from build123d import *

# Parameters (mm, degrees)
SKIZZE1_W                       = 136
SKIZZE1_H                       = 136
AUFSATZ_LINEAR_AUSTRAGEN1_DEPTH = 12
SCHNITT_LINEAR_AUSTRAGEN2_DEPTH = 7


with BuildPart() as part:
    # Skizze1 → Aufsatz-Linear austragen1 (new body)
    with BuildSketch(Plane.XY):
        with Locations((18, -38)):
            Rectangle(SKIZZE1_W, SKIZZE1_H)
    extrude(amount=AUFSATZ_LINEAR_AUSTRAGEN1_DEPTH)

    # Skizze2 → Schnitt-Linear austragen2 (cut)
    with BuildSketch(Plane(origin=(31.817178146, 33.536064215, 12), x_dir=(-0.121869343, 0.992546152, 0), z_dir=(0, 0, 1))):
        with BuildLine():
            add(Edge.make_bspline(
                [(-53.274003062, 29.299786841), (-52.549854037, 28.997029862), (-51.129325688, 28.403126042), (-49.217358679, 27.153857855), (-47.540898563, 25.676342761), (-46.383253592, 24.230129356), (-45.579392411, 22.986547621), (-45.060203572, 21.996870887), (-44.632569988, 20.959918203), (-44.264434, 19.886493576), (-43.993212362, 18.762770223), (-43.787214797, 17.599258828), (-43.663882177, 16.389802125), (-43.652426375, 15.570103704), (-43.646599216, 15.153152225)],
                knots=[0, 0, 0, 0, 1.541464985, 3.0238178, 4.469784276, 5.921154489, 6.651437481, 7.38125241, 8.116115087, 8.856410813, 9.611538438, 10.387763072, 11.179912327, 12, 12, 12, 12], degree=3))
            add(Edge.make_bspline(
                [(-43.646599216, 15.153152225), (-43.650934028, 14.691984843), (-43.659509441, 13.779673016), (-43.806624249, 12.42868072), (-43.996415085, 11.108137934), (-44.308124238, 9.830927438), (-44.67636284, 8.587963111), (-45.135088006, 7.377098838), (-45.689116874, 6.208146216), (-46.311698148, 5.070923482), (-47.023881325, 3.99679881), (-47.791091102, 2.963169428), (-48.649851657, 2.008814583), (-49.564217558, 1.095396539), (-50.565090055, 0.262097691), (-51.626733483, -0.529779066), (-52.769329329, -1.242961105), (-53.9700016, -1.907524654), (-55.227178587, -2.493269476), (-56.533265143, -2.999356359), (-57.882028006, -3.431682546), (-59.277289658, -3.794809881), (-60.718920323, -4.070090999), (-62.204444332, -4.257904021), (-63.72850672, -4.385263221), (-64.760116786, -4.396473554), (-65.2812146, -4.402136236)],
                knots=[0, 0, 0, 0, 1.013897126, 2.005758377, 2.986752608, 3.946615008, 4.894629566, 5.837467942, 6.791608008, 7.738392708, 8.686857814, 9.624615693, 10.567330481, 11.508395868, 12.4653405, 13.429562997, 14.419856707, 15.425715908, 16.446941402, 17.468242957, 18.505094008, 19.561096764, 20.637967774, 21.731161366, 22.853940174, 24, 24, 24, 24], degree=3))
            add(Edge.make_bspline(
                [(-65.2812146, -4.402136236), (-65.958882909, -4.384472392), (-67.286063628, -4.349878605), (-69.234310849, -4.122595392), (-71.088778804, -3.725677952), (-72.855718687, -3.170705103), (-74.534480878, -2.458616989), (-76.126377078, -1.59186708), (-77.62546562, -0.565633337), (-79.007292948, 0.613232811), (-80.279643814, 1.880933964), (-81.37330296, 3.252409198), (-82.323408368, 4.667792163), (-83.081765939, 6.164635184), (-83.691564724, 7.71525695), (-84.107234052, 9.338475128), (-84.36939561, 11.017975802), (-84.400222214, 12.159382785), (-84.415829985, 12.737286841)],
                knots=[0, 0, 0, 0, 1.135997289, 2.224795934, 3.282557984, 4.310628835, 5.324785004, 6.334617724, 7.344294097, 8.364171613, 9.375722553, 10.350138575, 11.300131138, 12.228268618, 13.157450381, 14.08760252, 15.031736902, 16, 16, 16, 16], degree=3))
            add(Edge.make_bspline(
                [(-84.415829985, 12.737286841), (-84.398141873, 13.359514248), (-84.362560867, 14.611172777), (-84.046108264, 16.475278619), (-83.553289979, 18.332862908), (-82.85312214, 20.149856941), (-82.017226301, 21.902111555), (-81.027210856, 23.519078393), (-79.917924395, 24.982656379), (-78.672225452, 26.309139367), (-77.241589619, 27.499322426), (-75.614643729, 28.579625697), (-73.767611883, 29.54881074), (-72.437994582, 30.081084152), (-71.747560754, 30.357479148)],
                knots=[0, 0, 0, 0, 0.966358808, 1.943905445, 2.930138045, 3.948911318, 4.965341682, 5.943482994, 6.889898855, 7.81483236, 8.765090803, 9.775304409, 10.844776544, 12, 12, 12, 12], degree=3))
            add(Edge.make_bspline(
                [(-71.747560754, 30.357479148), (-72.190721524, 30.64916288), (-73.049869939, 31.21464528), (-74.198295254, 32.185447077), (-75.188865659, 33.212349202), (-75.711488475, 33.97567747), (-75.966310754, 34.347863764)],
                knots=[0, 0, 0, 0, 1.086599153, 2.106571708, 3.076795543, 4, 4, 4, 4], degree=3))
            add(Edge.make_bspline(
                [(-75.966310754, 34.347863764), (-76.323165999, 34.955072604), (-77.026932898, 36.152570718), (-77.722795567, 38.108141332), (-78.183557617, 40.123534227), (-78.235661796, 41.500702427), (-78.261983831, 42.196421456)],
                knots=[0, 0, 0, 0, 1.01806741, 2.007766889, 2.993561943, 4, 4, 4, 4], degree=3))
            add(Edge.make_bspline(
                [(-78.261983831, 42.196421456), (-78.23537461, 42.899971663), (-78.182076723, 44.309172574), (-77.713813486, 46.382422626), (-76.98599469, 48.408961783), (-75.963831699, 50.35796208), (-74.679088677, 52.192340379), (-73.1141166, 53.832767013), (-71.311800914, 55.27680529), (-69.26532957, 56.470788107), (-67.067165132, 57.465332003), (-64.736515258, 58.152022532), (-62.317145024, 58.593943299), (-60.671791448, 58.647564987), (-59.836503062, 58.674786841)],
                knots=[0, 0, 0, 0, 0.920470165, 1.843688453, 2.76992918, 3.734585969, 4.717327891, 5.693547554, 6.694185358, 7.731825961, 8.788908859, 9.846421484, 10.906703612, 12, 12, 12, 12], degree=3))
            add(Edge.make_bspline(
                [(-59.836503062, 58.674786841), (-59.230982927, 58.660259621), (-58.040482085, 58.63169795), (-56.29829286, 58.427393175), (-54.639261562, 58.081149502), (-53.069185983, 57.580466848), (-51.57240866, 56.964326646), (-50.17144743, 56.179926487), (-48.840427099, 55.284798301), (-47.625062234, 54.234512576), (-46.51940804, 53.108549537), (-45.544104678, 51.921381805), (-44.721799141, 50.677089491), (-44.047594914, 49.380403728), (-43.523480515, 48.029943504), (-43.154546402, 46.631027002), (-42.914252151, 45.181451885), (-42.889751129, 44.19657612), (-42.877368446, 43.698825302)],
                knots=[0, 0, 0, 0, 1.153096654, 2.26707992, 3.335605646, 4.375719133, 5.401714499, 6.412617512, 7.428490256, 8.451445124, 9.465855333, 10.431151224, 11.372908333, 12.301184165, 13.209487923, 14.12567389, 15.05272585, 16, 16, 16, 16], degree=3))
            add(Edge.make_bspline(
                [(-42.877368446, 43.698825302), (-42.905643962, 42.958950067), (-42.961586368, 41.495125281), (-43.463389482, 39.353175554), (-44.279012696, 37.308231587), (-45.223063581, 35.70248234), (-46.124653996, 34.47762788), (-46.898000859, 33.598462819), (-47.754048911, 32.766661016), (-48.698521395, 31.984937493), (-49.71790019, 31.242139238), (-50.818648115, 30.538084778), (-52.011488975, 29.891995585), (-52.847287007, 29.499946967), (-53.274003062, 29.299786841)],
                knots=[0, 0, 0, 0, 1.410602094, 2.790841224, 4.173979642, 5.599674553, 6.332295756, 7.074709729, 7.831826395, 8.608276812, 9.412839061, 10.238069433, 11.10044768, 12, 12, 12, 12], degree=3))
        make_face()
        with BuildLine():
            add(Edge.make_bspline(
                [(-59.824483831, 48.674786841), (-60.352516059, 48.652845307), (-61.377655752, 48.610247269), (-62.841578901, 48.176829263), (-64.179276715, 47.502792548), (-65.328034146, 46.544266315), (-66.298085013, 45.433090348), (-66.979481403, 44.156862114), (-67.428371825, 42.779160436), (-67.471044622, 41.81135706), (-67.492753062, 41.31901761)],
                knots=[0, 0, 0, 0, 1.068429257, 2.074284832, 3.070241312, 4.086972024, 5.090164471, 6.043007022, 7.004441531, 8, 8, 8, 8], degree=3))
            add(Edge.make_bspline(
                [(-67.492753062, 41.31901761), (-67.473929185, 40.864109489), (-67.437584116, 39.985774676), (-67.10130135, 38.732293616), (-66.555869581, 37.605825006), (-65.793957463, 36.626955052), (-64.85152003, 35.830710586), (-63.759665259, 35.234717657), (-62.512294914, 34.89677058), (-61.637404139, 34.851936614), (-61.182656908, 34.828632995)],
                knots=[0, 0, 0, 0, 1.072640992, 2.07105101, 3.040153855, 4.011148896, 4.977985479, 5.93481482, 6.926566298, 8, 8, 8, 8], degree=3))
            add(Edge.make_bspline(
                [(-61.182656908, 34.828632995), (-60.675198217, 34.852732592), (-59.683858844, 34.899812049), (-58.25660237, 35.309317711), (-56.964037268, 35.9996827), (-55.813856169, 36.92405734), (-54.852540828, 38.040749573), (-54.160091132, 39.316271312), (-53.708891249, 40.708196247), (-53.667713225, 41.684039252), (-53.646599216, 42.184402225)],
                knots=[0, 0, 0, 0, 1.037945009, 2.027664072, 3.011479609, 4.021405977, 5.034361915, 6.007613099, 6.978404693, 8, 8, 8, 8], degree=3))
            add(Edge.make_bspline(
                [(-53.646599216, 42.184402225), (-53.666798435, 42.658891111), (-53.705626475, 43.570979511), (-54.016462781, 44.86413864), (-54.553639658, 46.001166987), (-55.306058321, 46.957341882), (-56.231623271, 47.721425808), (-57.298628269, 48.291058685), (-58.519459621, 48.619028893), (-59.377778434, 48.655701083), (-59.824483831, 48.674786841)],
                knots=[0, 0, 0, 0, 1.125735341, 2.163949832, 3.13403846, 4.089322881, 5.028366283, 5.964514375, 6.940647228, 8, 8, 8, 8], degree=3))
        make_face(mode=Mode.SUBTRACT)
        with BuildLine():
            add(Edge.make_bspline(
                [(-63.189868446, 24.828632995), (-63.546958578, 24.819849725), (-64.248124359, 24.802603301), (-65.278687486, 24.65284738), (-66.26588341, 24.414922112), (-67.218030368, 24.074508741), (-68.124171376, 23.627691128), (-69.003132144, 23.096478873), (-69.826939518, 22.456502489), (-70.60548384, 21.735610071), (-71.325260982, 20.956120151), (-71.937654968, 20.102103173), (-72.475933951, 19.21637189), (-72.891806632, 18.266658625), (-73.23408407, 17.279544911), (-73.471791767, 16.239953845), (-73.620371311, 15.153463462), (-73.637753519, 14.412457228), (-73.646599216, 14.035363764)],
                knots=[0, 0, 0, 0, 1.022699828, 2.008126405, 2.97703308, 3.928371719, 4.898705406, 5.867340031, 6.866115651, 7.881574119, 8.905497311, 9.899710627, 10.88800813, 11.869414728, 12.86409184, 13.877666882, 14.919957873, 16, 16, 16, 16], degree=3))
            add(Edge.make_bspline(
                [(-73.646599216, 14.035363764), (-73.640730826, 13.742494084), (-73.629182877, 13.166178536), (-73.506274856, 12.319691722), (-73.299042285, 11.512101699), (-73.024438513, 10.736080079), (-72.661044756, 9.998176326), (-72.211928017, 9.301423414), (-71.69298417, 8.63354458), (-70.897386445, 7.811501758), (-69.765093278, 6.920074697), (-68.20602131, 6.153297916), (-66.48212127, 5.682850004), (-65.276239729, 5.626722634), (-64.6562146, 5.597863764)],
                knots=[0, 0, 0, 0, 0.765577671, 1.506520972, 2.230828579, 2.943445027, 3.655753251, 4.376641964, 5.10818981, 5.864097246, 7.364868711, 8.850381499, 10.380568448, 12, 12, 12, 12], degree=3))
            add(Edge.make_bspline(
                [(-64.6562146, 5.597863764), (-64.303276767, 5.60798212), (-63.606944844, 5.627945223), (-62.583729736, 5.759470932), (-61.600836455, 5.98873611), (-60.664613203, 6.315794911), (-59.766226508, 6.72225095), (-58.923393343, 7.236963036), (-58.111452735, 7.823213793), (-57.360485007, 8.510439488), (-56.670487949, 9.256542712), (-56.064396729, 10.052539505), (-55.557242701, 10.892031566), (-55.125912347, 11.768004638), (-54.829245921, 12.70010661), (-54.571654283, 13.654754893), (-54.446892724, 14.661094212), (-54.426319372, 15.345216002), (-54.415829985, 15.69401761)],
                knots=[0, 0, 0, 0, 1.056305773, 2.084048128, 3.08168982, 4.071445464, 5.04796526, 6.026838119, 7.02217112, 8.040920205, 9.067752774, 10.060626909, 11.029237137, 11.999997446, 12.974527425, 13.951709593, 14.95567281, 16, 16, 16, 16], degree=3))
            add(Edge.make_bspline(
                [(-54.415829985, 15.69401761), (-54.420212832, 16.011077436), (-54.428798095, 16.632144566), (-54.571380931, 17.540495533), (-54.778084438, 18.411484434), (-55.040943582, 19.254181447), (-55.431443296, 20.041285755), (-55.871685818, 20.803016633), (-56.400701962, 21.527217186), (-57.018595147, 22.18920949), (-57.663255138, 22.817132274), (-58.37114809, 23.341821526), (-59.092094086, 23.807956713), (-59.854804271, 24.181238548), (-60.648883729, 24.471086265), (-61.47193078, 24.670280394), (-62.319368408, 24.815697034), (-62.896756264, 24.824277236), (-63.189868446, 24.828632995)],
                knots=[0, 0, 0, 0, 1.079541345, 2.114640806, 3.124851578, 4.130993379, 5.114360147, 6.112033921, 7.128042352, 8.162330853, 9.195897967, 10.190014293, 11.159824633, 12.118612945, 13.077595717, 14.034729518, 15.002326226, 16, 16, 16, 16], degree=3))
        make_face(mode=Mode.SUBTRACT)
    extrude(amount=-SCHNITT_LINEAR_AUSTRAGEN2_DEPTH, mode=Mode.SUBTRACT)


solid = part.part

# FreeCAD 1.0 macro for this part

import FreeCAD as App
import Part
import Sketcher
from FreeCAD import Vector

doc = App.newDocument("Part")
body = doc.addObject("PartDesign::Body", "Body")

# Sketch on XY plane
sketch1 = body.newObject("Sketcher::SketchObject", "Sketch")
sketch1.AttachmentSupport = (doc.getObject("XY_Plane"), [""])
sketch1.MapMode = "FlatFace"
sketch1.addGeometry(Part.LineSegment(Vector(-50, 30, 0), Vector(-50, -106, 0)), False)
sketch1.addGeometry(Part.LineSegment(Vector(-50, -106, 0), Vector(86, -106, 0)), False)
sketch1.addGeometry(Part.LineSegment(Vector(86, -106, 0), Vector(86, 30, 0)), False)
sketch1.addGeometry(Part.LineSegment(Vector(86, 30, 0), Vector(-50, 30, 0)), False)
sketch1.addConstraint(Sketcher.Constraint("Coincident", 0, 2, 1, 1))
sketch1.addConstraint(Sketcher.Constraint("Coincident", 1, 2, 2, 1))
sketch1.addConstraint(Sketcher.Constraint("Coincident", 2, 2, 3, 1))
sketch1.addConstraint(Sketcher.Constraint("Coincident", 3, 2, 0, 1))
sketch1.addConstraint(Sketcher.Constraint("Vertical", 0))
sketch1.addConstraint(Sketcher.Constraint("Horizontal", 1))
sketch1.addConstraint(Sketcher.Constraint("Vertical", 2))
sketch1.addConstraint(Sketcher.Constraint("Horizontal", 3))
sketch1.addConstraint(Sketcher.Constraint("Equal", 3, 0))
sketch1.addConstraint(Sketcher.Constraint("DistanceX", 1, 1, 1, 2, 136.0))
sketch1.addConstraint(Sketcher.Constraint("DistanceX", 0, 2, -1, 1, 50.0))
sketch1.addConstraint(Sketcher.Constraint("DistanceY", 0, 2, -1, 1, 106.0))
pad1 = body.newObject("PartDesign::Pad", "Pad")
pad1.Profile = sketch1
pad1.Length = 12

# Sketch on XY plane
sketch2 = body.newObject("Sketcher::SketchObject", "Sketch001")
sketch2.AttachmentSupport = (doc.getObject("XY_Plane"), [""])
sketch2.MapMode = "FlatFace"
sketch2.AttachmentOffset = App.Placement(Vector(0, 0, 12), App.Rotation())
sketch2.addGeometry(Part.BSplineCurve([Vector(9.228255, -22.911588, 0), Vector(9.440504, -22.15594, 0), Vector(9.856862, -20.673622, 0), Vector(10.863808, -18.623659, 0), Vector(12.126001, -16.779631, 0), Vector(13.420353, -15.454366, 0), Vector(14.556699, -14.504942, 0), Vector(15.475726, -13.869012, 0), Vector(16.452834, -13.318193, 0), Vector(17.473393, -12.821983, 0), Vector(18.555687, -12.415836, 0), Vector(19.685421, -12.069577, 0), Vector(20.870832, -11.799768, 0), Vector(21.683024, -11.688502, 0), Vector(22.096158, -11.631905, 0)], [4, 1, 1, 1, 1, 1, 1, 1, 1, 1, 1, 1, 4], [0, 1.541464985, 3.0238178, 4.469784276, 5.921154489, 6.651437481, 7.38125241, 8.116115087, 8.856410813, 9.611538438, 10.387763072, 11.179912327, 12], False, 3, [1, 1, 1, 1, 1, 1, 1, 1, 1, 1, 1, 1, 1, 1, 1], False), False)
sketch2.addGeometry(Part.BSplineCurve([Vector(-6.330486, -14.34725, 0), Vector(-5.59268, -14.285147, 0), Vector(-4.132948, -14.162277, 0), Vector(-1.94581, -14.399301, 0), Vector(0.183291, -14.959629, 0), Vector(1.892122, -15.700952, 0), Vector(3.217723, -16.446549, 0), Vector(4.184582, -17.106989, 0), Vector(5.114509, -17.855285, 0), Vector(6.005508, -18.697449, 0), Vector(6.867001, -19.618705, 0), Vector(7.699955, -20.625446, 0), Vector(8.486599, -21.730657, 0), Vector(8.977583, -22.512446, 0), Vector(9.228255, -22.911588, 0)], [4, 1, 1, 1, 1, 1, 1, 1, 1, 1, 1, 1, 4], [0, 1.410602094, 2.790841224, 4.173979642, 5.599674553, 6.332295756, 7.074709729, 7.831826395, 8.608276812, 9.412839061, 10.238069433, 11.10044768, 12], False, 3, [1, 1, 1, 1, 1, 1, 1, 1, 1, 1, 1, 1, 1, 1, 1], False), False)
sketch2.addGeometry(Part.BSplineCurve([Vector(-19.12802, -33.005084, 0), Vector(-19.187396, -32.402307, 0), Vector(-19.304133, -31.217199, 0), Vector(-19.31367, -29.463098, 0), Vector(-19.172192, -27.774236, 0), Vector(-18.866586, -26.154846, 0), Vector(-18.43745, -24.594137, 0), Vector(-17.82963, -23.108024, 0), Vector(-17.103385, -21.677836, 0), Vector(-16.209044, -20.343532, 0), Vector(-15.226219, -19.108899, 0), Vector(-14.166759, -17.996186, 0), Vector(-13.031956, -17.028369, 0), Vector(-11.8271, -16.201164, 0), Vector(-10.550579, -15.516377, 0), Vector(-9.207052, -14.979707, 0), Vector(-7.797566, -14.564545, 0), Vector(-6.823018, -14.420201, 0), Vector(-6.330486, -14.34725, 0)], [4, 1, 1, 1, 1, 1, 1, 1, 1, 1, 1, 1, 1, 1, 1, 1, 4], [0, 1.153096654, 2.26707992, 3.335605646, 4.375719133, 5.401714499, 6.412617512, 7.428490256, 8.451445124, 9.465855333, 10.431151224, 11.372908333, 12.301184165, 13.209487923, 14.12567389, 15.05272585, 16], False, 3, [1, 1, 1, 1, 1, 1, 1, 1, 1, 1, 1, 1, 1, 1, 1, 1, 1, 1, 1], False), False)
sketch2.addGeometry(Part.BSplineCurve([Vector(-0.526981, -49.285017, 0), Vector(-1.22853, -49.344347, 0), Vector(-2.633722, -49.463185, 0), Vector(-4.748586, -49.251078, 0), Vector(-6.848718, -48.775657, 0), Vector(-8.907761, -47.998636, 0), Vector(-10.885037, -46.947024, 0), Vector(-12.703958, -45.593635, 0), Vector(-14.35688, -43.980737, 0), Vector(-15.791365, -42.09503, 0), Vector(-17.046385, -40.034455, 0), Vector(-18.011991, -37.804864, 0), Vector(-18.745465, -35.457384, 0), Vector(-18.999205, -33.830829, 0), Vector(-19.12802, -33.005084, 0)], [4, 1, 1, 1, 1, 1, 1, 1, 1, 1, 1, 1, 4], [0, 0.920470165, 1.843688453, 2.76992918, 3.734585969, 4.717327891, 5.693547554, 6.694185358, 7.731825961, 8.788908859, 9.846421484, 10.906703612, 12], False, 3, [1, 1, 1, 1, 1, 1, 1, 1, 1, 1, 1, 1, 1, 1, 1], False), False)
sketch2.addGeometry(Part.BSplineCurve([Vector(6.983303, -46.049957, 0), Vector(6.424109, -46.478152, 0), Vector(5.321305, -47.322612, 0), Vector(3.465115, -48.251612, 0), Vector(1.520897, -48.954554, 0), Vector(0.160344, -49.174104, 0), Vector(-0.526981, -49.285017, 0)], [4, 1, 1, 1, 4], [0, 1.01806741, 2.007766889, 2.993561943, 4], False, 3, [1, 1, 1, 1, 1, 1, 1], False), False)
sketch2.addGeometry(Part.BSplineCurve([Vector(10.429807, -41.376347, 0), Vector(10.194305, -41.851752, 0), Vector(9.737742, -42.773411, 0), Vector(8.914134, -44.031588, 0), Vector(8.015606, -45.139922, 0), Vector(7.32166, -45.751676, 0), Vector(6.983303, -46.049957, 0)], [4, 1, 1, 1, 4], [0, 1.086599153, 2.106571708, 3.076795543, 4], False, 3, [1, 1, 1, 1, 1, 1, 1], False), False)
sketch2.addGeometry(Part.BSplineCurve([Vector(29.462535, -51.802828, 0), Vector(28.84279, -51.861102, 0), Vector(27.596125, -51.978325, 0), Vector(25.707348, -51.891409, 0), Vector(23.80355, -51.628646, 0), Vector(21.914771, -51.155133, 0), Vector(20.073707, -50.539014, 0), Vector(18.34814, -49.753437, 0), Vector(16.760284, -48.830784, 0), Vector(15.291876, -47.756028, 0), Vector(13.936213, -46.481103, 0), Vector(12.665688, -44.99794, 0), Vector(11.47863, -43.282789, 0), Vector(10.788285, -42.027951, 0), Vector(10.429807, -41.376347, 0)], [4, 1, 1, 1, 1, 1, 1, 1, 1, 1, 1, 1, 4], [0, 0.966358808, 1.943905445, 2.930138045, 3.948911318, 4.965341682, 5.943482994, 6.889898855, 7.81483236, 8.765090803, 9.775304409, 10.844776544, 12], False, 3, [1, 1, 1, 1, 1, 1, 1, 1, 1, 1, 1, 1, 1, 1, 1], False), False)
sketch2.addGeometry(Part.BSplineCurve([Vector(44.14228, -30.722069, 0), Vector(44.207335, -31.396838, 0), Vector(44.334742, -32.718342, 0), Vector(44.346584, -34.679767, 0), Vector(44.178628, -36.568784, 0), Vector(43.843128, -38.390187, 0), Vector(43.340937, -40.143218, 0), Vector(42.674651, -41.828879, 0), Vector(41.83876, -43.44186, 0), Vector(40.837083, -44.957055, 0), Vector(39.733892, -46.374416, 0), Vector(38.505923, -47.627063, 0), Vector(37.216879, -48.742579, 0), Vector(35.823613, -49.677703, 0), Vector(34.358866, -50.47193, 0), Vector(32.798404, -51.082321, 0), Vector(31.163371, -51.547208, 0), Vector(30.034229, -51.716908, 0), Vector(29.462535, -51.802828, 0)], [4, 1, 1, 1, 1, 1, 1, 1, 1, 1, 1, 1, 1, 1, 1, 1, 4], [0, 1.135997289, 2.224795934, 3.282557984, 4.310628835, 5.324785004, 6.334617724, 7.344294097, 8.364171613, 9.375722553, 10.350138575, 11.300131138, 12.228268618, 13.157450381, 14.08760252, 15.031736902, 16], False, 3, [1, 1, 1, 1, 1, 1, 1, 1, 1, 1, 1, 1, 1, 1, 1, 1, 1, 1, 1], False), False)
sketch2.addGeometry(Part.BSplineCurve([Vector(22.096158, -11.631905, 0), Vector(22.554416, -11.580005, 0), Vector(23.460972, -11.477334, 0), Vector(24.819823, -11.458707, 0), Vector(26.153653, -11.48615, 0), Vector(27.459331, -11.639883, 0), Vector(28.737907, -11.853897, 0), Vector(29.995651, -12.161636, 0), Vector(31.223409, -12.569076, 0), Vector(32.428029, -13.048424, 0), Vector(33.58094, -13.624395, 0), Vector(34.700365, -14.259919, 0), Vector(35.752262, -14.995972, 0), Vector(36.770305, -15.792204, 0), Vector(37.719368, -16.684063, 0), Vector(38.634724, -17.641288, 0), Vector(39.481838, -18.688452, 0), Vector(40.287773, -19.799184, 0), Vector(41.022363, -20.975606, 0), Vector(41.68385, -22.210281, 0), Vector(42.277326, -23.496303, 0), Vector(42.807786, -24.836911, 0), Vector(43.256706, -26.234247, 0), Vector(43.624159, -27.68581, 0), Vector(43.936306, -29.182991, 0), Vector(44.073154, -30.205545, 0), Vector(44.14228, -30.722069, 0)], [4, 1, 1, 1, 1, 1, 1, 1, 1, 1, 1, 1, 1, 1, 1, 1, 1, 1, 1, 1, 1, 1, 1, 1, 4], [0, 1.013897126, 2.005758377, 2.986752608, 3.946615008, 4.894629566, 5.837467942, 6.791608008, 7.738392708, 8.686857814, 9.624615693, 10.567330481, 11.508395868, 12.4653405, 13.429562997, 14.419856707, 15.425715908, 16.446941402, 17.468242957, 18.505094008, 19.561096764, 20.637967774, 21.731161366, 22.853940174, 24], False, 3, [1, 1, 1, 1, 1, 1, 1, 1, 1, 1, 1, 1, 1, 1, 1, 1, 1, 1, 1, 1, 1, 1, 1, 1, 1, 1, 1], False), False)
sketch2.addGeometry(Part.BSplineCurve([Vector(22.871763, -22.386778, 0), Vector(22.5576, -22.429768, 0), Vector(21.942209, -22.513978, 0), Vector(21.058005, -22.766199, 0), Vector(20.218699, -23.077508, 0), Vector(19.414318, -23.441107, 0), Vector(18.680671, -23.92462, 0), Vector(17.97827, -24.454413, 0), Vector(17.323938, -25.067743, 0), Vector(16.742182, -25.761707, 0), Vector(16.197504, -26.478087, 0), Vector(15.762996, -27.244647, 0), Vector(15.388197, -28.017026, 0), Vector(15.110649, -28.819543, 0), Vector(14.919735, -29.643027, 0), Vector(14.82233, -30.484215, 0), Vector(14.781274, -31.343058, 0), Vector(14.843124, -31.917188, 0), Vector(14.874522, -32.208646, 0)], [4, 1, 1, 1, 1, 1, 1, 1, 1, 1, 1, 1, 1, 1, 1, 1, 4], [0, 1.079541345, 2.114640806, 3.124851578, 4.130993379, 5.114360147, 6.112033921, 7.128042352, 8.162330853, 9.195897967, 10.190014293, 11.159824633, 12.118612945, 13.077595717, 14.034729518, 15.002326226, 16], False, 3, [1, 1, 1, 1, 1, 1, 1, 1, 1, 1, 1, 1, 1, 1, 1, 1, 1, 1, 1], False), False)
sketch2.addGeometry(Part.BSplineCurve([Vector(34.14065, -31.320421, 0), Vector(34.087595, -30.971347, 0), Vector(33.982919, -30.282638, 0), Vector(33.727675, -29.283079, 0), Vector(33.380335, -28.335452, 0), Vector(32.941617, -27.446066, 0), Vector(32.428705, -26.60391, 0), Vector(31.815114, -25.830087, 0), Vector(31.134282, -25.095645, 0), Vector(30.360659, -24.434026, 0), Vector(29.536027, -23.840099, 0), Vector(28.6721, -23.335533, 0), Vector(27.777059, -22.934468, 0), Vector(26.855049, -22.613107, 0), Vector(25.89374, -22.432246, 0), Vector(24.914815, -22.292917, 0), Vector(23.900773, -22.291728, 0), Vector(23.219243, -22.354681, 0), Vector(22.871763, -22.386778, 0)], [4, 1, 1, 1, 1, 1, 1, 1, 1, 1, 1, 1, 1, 1, 1, 1, 4], [0, 1.056305773, 2.084048128, 3.08168982, 4.071445464, 5.04796526, 6.026838119, 7.02217112, 8.040920205, 9.067752774, 10.060626909, 11.029237137, 11.999997446, 12.974527425, 13.951709593, 14.95567281, 16], False, 3, [1, 1, 1, 1, 1, 1, 1, 1, 1, 1, 1, 1, 1, 1, 1, 1, 1, 1, 1], False), False)
sketch2.addGeometry(Part.BSplineCurve([Vector(26.861695, -41.272065, 0), Vector(27.151666, -41.230549, 0), Vector(27.722278, -41.148851, 0), Vector(28.547477, -40.923699, 0), Vector(29.323792, -40.61959, 0), Vector(30.060564, -40.25246, 0), Vector(30.74868, -39.801847, 0), Vector(31.385506, -39.271165, 0), Vector(31.985164, -38.674696, 0), Vector(32.70412, -37.784846, 0), Vector(33.450911, -36.552356, 0), Vector(34.021969, -34.911458, 0), Vector(34.27882, -33.143075, 0), Vector(34.187569, -31.939341, 0), Vector(34.14065, -31.320421, 0)], [4, 1, 1, 1, 1, 1, 1, 1, 1, 1, 1, 1, 4], [0, 0.765577671, 1.506520972, 2.230828579, 2.943445027, 3.655753251, 4.376641964, 5.10818981, 5.864097246, 7.364868711, 8.850381499, 10.380568448, 12], False, 3, [1, 1, 1, 1, 1, 1, 1, 1, 1, 1, 1, 1, 1, 1, 1], False), False)
sketch2.addGeometry(Part.BSplineCurve([Vector(14.874522, -32.208646, 0), Vector(14.926758, -32.562004, 0), Vector(15.029326, -33.255841, 0), Vector(15.30356, -34.260472, 0), Vector(15.660021, -35.211314, 0), Vector(16.113934, -36.114878, 0), Vector(16.667852, -36.959811, 0), Vector(17.302223, -37.767482, 0), Vector(18.037826, -38.507155, 0), Vector(18.848226, -39.192042, 0), Vector(19.709624, -39.811458, 0), Vector(20.631908, -40.315209, 0), Vector(21.576637, -40.741532, 0), Vector(22.569953, -41.038564, 0), Vector(23.591422, -41.257991, 0), Vector(24.652233, -41.367232, 0), Vector(25.748733, -41.382295, 0), Vector(26.486334, -41.309241, 0), Vector(26.861695, -41.272065, 0)], [4, 1, 1, 1, 1, 1, 1, 1, 1, 1, 1, 1, 1, 1, 1, 1, 4], [0, 1.022699828, 2.008126405, 2.97703308, 3.928371719, 4.898705406, 5.867340031, 6.866115651, 7.881574119, 8.905497311, 9.899710627, 10.88800813, 11.869414728, 12.86409184, 13.877666882, 14.919957873, 16], False, 3, [1, 1, 1, 1, 1, 1, 1, 1, 1, 1, 1, 1, 1, 1, 1, 1, 1, 1, 1], False), False)
sketch2.addGeometry(Part.BSplineCurve([Vector(-3.514912, -24.851647, 0), Vector(-3.983403, -24.929521, 0), Vector(-4.88396, -25.079215, 0), Vector(-6.129599, -25.545331, 0), Vector(-7.192687, -26.217073, 0), Vector(-8.050038, -27.080412, 0), Vector(-8.695628, -28.092196, 0), Vector(-9.13098, -29.220668, 0), Vector(-9.307724, -30.472369, 0), Vector(-9.23952, -31.32876, 0), Vector(-9.204024, -31.774461, 0)], [4, 1, 1, 1, 1, 1, 1, 1, 4], [0, 1.125735341, 2.163949832, 3.13403846, 4.089322881, 5.028366283, 5.964514375, 6.940647228, 8], False, 3, [1, 1, 1, 1, 1, 1, 1, 1, 1, 1, 1], False), False)
sketch2.addGeometry(Part.BSplineCurve([Vector(4.704443, -31.435089, 0), Vector(4.618679, -30.93435, 0), Vector(4.451137, -29.956137, 0), Vector(3.870745, -28.589426, 0), Vector(3.028001, -27.390629, 0), Vector(1.970345, -26.361675, 0), Vector(0.744822, -25.543615, 0), Vector(-0.605581, -25.011774, 0), Vector(-2.042118, -24.73357, 0), Vector(-3.015706, -24.811625, 0), Vector(-3.514912, -24.851647, 0)], [4, 1, 1, 1, 1, 1, 1, 1, 4], [0, 1.037945009, 2.027664072, 3.011479609, 4.021405977, 5.034361915, 6.007613099, 6.978404693, 8], False, 3, [1, 1, 1, 1, 1, 1, 1, 1, 1, 1, 1], False), False)
sketch2.addGeometry(Part.BSplineCurve([Vector(-0.968556, -38.48913, 0), Vector(-0.519333, -38.415007, 0), Vector(0.348025, -38.27189, 0), Vector(1.551181, -37.785353, 0), Vector(2.602781, -37.106705, 0), Vector(3.481501, -36.231178, 0), Vector(4.156956, -35.198728, 0), Vector(4.615443, -34.042378, 0), Vector(4.798855, -32.76312, 0), Vector(4.736733, -31.889287, 0), Vector(4.704443, -31.435089, 0)], [4, 1, 1, 1, 1, 1, 1, 1, 4], [0, 1.072640992, 2.07105101, 3.040153855, 4.011148896, 4.977985479, 5.93481482, 6.926566298, 8], False, 3, [1, 1, 1, 1, 1, 1, 1, 1, 1, 1, 1], False), False)
sketch2.addGeometry(Part.BSplineCurve([Vector(-9.204024, -31.774461, 0), Vector(-9.117895, -32.295884, 0), Vector(-8.950681, -33.308191, 0), Vector(-8.342086, -34.708382, 0), Vector(-7.51005, -35.953964, 0), Vector(-6.41867, -36.977344, 0), Vector(-5.197557, -37.804746, 0), Vector(-3.8478, -38.32553, 0), Vector(-2.425662, -38.603175, 0), Vector(-1.459872, -38.527584, 0), Vector(-0.968556, -38.48913, 0)], [4, 1, 1, 1, 1, 1, 1, 1, 4], [0, 1.068429257, 2.074284832, 3.070241312, 4.086972024, 5.090164471, 6.043007022, 7.004441531, 8], False, 3, [1, 1, 1, 1, 1, 1, 1, 1, 1, 1, 1], False), False)
sketch2.addConstraint(Sketcher.Constraint("Block", 0))
sketch2.addConstraint(Sketcher.Constraint("Block", 1))
sketch2.addConstraint(Sketcher.Constraint("Block", 2))
sketch2.addConstraint(Sketcher.Constraint("Block", 3))
sketch2.addConstraint(Sketcher.Constraint("Block", 4))
sketch2.addConstraint(Sketcher.Constraint("Block", 5))
sketch2.addConstraint(Sketcher.Constraint("Block", 6))
sketch2.addConstraint(Sketcher.Constraint("Block", 7))
sketch2.addConstraint(Sketcher.Constraint("Block", 8))
sketch2.addConstraint(Sketcher.Constraint("Block", 9))
sketch2.addConstraint(Sketcher.Constraint("Block", 10))
sketch2.addConstraint(Sketcher.Constraint("Block", 11))
sketch2.addConstraint(Sketcher.Constraint("Block", 12))
sketch2.addConstraint(Sketcher.Constraint("Block", 13))
sketch2.addConstraint(Sketcher.Constraint("Block", 14))
sketch2.addConstraint(Sketcher.Constraint("Block", 15))
sketch2.addConstraint(Sketcher.Constraint("Block", 16))
pocket1 = body.newObject("PartDesign::Pocket", "Pocket")
pocket1.Profile = sketch2
pocket1.Length = 7

doc.recompute()
